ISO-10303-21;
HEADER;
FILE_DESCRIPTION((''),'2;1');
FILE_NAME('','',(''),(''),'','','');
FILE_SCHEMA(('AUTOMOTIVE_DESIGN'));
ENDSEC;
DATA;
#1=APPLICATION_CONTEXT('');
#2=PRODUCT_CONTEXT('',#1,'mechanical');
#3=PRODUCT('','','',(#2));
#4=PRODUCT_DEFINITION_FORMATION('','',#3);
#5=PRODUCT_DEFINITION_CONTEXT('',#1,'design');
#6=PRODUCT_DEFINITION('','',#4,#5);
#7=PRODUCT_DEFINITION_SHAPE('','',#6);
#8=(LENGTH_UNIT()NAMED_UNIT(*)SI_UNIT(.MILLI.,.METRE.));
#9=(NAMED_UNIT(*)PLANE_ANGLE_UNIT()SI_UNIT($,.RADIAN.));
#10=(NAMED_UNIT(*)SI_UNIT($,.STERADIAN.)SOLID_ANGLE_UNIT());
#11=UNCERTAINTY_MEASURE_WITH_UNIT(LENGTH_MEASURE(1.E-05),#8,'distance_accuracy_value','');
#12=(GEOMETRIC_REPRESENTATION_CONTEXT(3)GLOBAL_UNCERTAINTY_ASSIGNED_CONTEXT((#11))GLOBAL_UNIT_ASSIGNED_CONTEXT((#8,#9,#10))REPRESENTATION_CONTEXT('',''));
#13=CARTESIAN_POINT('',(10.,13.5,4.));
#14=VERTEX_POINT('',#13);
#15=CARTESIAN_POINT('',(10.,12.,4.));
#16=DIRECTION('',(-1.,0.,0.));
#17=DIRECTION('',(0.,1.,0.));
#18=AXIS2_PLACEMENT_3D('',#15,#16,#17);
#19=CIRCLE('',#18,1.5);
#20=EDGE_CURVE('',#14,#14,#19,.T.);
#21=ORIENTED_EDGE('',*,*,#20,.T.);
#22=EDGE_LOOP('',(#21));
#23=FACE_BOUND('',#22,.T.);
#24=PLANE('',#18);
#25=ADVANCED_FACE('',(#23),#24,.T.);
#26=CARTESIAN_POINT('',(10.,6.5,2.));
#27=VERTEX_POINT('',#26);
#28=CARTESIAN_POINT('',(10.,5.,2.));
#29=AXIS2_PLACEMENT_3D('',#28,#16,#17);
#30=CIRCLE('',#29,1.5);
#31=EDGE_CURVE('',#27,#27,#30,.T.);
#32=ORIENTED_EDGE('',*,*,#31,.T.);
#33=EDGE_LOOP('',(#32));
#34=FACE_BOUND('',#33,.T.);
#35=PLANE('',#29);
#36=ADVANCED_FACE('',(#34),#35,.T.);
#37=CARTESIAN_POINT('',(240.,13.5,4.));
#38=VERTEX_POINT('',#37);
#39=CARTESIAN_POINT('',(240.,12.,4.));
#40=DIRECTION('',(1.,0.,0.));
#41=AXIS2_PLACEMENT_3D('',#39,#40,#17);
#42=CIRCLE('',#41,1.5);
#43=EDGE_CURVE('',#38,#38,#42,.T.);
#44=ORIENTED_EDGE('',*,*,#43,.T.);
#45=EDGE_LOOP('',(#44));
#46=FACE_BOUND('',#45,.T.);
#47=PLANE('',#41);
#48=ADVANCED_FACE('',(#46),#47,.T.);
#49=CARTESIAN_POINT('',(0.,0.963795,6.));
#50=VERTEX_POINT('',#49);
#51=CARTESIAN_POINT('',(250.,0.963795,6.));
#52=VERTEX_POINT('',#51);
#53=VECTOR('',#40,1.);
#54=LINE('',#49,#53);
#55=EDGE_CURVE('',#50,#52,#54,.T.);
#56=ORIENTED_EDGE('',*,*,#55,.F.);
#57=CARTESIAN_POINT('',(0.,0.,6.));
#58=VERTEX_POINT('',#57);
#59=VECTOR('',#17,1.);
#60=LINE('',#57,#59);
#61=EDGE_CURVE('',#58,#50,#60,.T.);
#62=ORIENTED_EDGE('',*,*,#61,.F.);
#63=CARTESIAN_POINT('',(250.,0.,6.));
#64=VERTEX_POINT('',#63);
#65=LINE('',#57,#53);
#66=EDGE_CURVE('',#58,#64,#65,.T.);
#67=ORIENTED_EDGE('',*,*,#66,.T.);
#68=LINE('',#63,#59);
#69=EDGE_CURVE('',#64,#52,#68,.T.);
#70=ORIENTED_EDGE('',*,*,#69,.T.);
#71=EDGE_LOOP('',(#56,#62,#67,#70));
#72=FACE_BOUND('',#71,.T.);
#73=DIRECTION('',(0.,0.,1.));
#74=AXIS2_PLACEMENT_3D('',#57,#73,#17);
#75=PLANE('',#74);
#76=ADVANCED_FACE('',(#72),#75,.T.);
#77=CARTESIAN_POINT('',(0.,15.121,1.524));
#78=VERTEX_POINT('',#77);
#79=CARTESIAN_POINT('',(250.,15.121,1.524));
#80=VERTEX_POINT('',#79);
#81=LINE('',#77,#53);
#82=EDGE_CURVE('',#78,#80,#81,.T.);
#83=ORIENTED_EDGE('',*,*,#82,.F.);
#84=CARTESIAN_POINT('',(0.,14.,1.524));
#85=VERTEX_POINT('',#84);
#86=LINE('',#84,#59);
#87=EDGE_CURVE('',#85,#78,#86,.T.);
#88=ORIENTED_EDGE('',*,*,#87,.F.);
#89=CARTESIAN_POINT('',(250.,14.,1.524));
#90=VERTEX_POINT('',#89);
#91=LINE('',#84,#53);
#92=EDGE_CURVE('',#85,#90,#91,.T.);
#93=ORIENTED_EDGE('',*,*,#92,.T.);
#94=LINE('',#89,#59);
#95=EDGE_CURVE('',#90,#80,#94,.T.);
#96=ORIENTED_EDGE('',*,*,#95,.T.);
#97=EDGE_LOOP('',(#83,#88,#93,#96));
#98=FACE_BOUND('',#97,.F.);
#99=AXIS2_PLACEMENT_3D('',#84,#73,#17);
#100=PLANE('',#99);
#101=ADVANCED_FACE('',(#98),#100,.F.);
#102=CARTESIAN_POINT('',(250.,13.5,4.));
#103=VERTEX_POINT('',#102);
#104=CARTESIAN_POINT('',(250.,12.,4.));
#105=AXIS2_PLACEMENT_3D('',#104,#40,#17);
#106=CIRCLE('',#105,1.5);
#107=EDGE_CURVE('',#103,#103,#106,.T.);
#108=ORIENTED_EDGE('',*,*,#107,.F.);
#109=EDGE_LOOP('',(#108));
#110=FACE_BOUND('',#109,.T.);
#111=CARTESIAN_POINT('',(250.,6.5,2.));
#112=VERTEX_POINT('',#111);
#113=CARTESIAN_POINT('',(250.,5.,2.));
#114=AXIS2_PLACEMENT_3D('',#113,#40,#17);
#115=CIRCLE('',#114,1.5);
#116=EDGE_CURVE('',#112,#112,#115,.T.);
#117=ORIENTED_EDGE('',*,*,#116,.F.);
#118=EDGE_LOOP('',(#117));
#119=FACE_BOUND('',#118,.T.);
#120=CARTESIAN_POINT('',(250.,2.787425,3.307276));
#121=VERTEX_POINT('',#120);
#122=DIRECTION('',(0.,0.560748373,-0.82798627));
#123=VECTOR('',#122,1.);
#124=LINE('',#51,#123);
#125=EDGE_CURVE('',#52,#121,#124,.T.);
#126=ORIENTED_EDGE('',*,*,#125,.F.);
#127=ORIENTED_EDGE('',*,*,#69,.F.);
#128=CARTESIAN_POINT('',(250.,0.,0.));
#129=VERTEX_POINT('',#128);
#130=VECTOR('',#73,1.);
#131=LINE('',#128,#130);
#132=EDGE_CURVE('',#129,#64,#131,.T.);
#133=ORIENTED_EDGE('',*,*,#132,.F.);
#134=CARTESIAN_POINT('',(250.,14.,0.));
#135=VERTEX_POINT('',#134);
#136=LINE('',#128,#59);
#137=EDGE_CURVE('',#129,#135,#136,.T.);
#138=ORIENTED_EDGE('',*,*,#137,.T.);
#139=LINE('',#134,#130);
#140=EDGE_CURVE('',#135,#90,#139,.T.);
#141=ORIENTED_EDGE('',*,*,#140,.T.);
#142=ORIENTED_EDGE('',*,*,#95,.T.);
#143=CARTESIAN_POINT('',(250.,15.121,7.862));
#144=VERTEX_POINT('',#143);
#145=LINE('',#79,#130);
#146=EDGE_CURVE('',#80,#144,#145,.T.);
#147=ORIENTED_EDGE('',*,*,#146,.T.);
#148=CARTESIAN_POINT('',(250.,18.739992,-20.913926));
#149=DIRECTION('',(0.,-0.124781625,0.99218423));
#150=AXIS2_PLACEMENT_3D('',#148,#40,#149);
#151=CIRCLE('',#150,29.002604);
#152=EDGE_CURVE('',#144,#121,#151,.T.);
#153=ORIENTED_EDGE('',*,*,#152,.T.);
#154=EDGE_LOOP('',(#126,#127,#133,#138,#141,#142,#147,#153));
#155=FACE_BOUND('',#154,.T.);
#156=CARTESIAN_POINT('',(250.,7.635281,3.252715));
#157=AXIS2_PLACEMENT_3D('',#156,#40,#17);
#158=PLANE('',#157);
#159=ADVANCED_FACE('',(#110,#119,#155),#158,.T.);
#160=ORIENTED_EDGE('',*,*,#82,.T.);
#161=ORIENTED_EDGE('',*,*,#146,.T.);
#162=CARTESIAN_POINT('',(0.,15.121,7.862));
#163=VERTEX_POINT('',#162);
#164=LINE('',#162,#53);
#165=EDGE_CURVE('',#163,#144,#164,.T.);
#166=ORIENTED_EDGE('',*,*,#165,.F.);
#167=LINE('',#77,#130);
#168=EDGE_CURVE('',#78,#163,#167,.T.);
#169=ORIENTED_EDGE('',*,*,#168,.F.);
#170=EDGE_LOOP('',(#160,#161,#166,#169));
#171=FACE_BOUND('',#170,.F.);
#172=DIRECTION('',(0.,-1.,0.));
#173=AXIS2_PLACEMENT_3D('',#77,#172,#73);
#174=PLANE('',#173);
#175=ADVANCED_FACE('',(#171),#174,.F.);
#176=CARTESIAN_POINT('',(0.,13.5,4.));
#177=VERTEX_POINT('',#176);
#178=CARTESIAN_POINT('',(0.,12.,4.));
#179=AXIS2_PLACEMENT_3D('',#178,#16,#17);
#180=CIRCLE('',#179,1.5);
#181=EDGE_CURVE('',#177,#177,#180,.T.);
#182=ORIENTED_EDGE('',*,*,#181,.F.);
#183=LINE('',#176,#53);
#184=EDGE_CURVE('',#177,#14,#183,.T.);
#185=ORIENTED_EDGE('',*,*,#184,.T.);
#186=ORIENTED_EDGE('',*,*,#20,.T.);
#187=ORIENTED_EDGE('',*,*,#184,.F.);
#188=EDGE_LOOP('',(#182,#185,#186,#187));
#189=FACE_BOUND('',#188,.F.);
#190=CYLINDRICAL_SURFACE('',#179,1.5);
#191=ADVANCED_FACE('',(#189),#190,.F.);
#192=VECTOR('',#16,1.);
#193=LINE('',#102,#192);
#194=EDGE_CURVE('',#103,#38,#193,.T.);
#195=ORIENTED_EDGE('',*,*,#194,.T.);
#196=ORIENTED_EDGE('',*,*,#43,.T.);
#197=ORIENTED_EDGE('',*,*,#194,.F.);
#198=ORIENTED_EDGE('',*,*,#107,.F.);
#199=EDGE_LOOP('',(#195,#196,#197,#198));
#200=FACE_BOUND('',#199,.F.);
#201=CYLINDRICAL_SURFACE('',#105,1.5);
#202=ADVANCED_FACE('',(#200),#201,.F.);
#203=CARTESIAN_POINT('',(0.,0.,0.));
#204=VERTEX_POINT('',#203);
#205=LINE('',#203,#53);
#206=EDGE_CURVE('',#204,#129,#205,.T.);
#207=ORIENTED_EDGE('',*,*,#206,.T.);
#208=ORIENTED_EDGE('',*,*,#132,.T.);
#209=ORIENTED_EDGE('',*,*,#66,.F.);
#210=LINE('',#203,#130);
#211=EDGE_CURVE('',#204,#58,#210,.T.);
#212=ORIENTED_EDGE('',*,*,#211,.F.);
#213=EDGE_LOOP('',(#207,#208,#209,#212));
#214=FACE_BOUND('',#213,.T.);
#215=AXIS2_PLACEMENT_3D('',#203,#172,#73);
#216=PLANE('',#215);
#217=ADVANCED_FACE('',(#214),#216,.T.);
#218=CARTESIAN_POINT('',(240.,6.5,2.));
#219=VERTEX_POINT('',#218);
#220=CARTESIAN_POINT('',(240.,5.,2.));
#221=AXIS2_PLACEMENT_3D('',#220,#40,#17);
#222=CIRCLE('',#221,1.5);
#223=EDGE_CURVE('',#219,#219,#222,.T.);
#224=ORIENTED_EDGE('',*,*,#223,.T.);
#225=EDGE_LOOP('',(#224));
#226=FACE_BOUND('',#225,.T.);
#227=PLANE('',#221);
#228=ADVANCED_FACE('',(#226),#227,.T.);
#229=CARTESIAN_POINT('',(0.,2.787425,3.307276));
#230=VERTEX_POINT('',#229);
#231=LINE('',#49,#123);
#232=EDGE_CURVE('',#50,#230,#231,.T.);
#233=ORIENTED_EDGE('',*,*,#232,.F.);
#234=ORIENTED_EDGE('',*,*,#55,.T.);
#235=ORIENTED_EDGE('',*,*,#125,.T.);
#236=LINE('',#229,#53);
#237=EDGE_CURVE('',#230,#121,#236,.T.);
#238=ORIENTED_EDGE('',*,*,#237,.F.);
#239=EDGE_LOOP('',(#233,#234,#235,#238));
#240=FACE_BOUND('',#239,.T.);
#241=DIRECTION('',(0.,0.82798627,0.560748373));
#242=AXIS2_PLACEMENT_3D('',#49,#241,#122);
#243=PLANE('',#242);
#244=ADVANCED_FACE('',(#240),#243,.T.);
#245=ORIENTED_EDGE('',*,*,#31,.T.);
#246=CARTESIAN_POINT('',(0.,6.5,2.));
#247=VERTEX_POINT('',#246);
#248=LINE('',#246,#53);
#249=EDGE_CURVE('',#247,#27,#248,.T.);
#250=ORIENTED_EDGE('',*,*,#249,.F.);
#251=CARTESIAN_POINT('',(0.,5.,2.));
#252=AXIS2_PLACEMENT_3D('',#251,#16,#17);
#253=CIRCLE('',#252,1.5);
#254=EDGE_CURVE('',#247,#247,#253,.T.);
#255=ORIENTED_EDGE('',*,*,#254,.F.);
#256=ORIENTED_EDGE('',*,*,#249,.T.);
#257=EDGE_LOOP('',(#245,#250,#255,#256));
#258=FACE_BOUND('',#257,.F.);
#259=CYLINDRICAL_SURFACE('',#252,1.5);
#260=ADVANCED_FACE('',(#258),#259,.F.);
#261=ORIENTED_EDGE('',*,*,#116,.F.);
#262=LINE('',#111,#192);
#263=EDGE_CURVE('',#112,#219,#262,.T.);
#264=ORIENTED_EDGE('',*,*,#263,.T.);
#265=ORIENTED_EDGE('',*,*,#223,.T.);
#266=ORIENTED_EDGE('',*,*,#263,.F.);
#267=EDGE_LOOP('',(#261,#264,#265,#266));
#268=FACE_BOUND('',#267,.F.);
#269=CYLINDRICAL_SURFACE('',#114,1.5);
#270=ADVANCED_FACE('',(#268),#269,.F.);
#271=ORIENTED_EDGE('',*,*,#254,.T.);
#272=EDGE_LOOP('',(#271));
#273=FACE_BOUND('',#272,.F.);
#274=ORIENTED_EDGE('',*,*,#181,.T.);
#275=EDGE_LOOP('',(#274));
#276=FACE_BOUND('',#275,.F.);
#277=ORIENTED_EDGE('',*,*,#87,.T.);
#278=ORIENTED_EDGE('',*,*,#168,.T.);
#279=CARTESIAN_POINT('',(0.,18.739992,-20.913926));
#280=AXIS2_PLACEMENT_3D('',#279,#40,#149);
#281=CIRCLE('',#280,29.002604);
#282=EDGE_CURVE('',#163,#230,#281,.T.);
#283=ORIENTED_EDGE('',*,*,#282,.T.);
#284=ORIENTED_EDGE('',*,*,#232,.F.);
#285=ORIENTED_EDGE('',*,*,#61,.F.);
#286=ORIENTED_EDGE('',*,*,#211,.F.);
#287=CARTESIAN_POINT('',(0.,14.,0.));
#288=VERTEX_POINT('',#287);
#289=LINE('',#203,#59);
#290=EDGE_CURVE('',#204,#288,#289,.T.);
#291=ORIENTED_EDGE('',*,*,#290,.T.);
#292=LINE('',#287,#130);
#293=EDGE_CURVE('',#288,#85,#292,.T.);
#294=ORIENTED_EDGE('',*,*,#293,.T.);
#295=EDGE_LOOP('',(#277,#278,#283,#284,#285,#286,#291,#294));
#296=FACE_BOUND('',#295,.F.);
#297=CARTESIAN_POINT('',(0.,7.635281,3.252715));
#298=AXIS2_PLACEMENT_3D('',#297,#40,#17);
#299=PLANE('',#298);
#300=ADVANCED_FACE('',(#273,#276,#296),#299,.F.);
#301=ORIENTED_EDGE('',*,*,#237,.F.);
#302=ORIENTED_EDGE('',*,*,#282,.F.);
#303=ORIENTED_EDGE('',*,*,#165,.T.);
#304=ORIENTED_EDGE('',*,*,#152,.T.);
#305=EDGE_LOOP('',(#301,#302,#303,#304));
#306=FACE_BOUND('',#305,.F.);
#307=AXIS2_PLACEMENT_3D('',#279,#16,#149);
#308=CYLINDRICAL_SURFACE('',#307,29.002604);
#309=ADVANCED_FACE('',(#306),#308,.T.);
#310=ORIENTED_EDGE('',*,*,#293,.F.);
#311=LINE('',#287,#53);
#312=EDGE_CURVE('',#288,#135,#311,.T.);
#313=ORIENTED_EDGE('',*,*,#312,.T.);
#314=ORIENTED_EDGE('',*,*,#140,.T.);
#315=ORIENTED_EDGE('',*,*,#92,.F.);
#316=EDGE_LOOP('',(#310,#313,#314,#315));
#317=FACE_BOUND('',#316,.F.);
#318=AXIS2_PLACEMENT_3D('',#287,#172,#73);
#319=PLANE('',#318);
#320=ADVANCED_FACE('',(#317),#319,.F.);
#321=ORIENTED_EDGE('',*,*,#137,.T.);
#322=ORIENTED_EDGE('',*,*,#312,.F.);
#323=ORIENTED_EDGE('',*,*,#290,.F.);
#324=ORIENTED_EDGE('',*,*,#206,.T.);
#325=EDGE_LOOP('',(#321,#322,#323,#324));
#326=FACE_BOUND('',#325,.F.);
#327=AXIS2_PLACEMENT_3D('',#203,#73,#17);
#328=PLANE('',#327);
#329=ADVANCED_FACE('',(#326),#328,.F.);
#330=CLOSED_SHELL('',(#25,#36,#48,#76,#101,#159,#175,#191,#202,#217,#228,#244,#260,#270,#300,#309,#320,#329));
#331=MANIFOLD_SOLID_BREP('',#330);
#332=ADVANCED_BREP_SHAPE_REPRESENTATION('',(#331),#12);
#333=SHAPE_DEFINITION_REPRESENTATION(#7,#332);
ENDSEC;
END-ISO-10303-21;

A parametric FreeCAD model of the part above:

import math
import FreeCAD as App
import Part
import Sketcher

doc = App.newDocument("Part")
body = doc.addObject("PartDesign::Body", "Body")

sketch1 = body.newObject("Sketcher::SketchObject", "Sketch")
sketch1.AttachmentSupport = (doc.getObject("YZ_Plane"), [""])
sketch1.MapMode = "FlatFace"
sketch1.addGeometry([
    Part.LineSegment(App.Vector(0, 0, 0), App.Vector(14, 0, 0)),
    Part.LineSegment(App.Vector(14, 0, 0), App.Vector(14, 1.5, 0)),
    Part.LineSegment(App.Vector(14, 1.5, 0), App.Vector(15.1, 1.5, 0)),
    Part.LineSegment(App.Vector(15.1, 1.5, 0), App.Vector(15.1, 7.9, 0)),
    Part.ArcOfCircle(Part.Circle(App.Vector(18.7, -20.9, 0), App.Vector(0, 0, 1), 29), math.radians(97), math.radians(123)),
    Part.LineSegment(App.Vector(2.8, 3.3, 0), App.Vector(1, 6, 0)),
    Part.LineSegment(App.Vector(1, 6, 0), App.Vector(0, 6, 0)),
    Part.LineSegment(App.Vector(0, 6, 0), App.Vector(0, 0, 0)),
], False)
sketch1.addConstraint([
    Sketcher.Constraint("Coincident", 0, 2, 1, 1),
    Sketcher.Constraint("Coincident", 1, 2, 2, 1),
    Sketcher.Constraint("Coincident", 2, 2, 3, 1),
    Sketcher.Constraint("Coincident", 3, 2, 4, 1),
    Sketcher.Constraint("Coincident", 4, 2, 5, 1),
    Sketcher.Constraint("Coincident", 5, 2, 6, 1),
    Sketcher.Constraint("Coincident", 6, 2, 7, 1),
    Sketcher.Constraint("Coincident", 7, 2, 0, 1),
    Sketcher.Constraint("Horizontal", 0),
    Sketcher.Constraint("Vertical", 1),
    Sketcher.Constraint("Horizontal", 2),
    Sketcher.Constraint("Vertical", 3),
    Sketcher.Constraint("Horizontal", 6),
    Sketcher.Constraint("Vertical", 7),
    Sketcher.Constraint("Coincident", 7, 2, -1, 1),
    Sketcher.Constraint("DistanceX", 0, 1, 0, 2, 14.0),
    Sketcher.Constraint("DistanceY", 7, 2, 7, 1, 6.0),
    Sketcher.Constraint("DistanceX", 2, 1, 2, 2, 1.121),
    Sketcher.Constraint("DistanceY", 1, 1, 1, 2, 1.524),
    Sketcher.Constraint("DistanceY", 3, 1, 3, 2, 6.338),
    Sketcher.Constraint("Radius", 4, 29.002604),
    Sketcher.Constraint("DistanceX", 6, 2, 6, 1, 0.963795),
    Sketcher.Constraint("DistanceX", 5, 2, 4, 2, 1.82363),
    Sketcher.Constraint("Distance", 5, 3.252136),
])
pad1 = body.newObject("PartDesign::Pad", "Pad")
pad1.Profile = sketch1
pad1.Length = 250

sketch2 = body.newObject("Sketcher::SketchObject", "Sketch001")
sketch2.AttachmentSupport = (doc.getObject("YZ_Plane"), [""])
sketch2.MapMode = "FlatFace"
sketch2.AttachmentOffset = App.Placement(App.Vector(0, 0, 250), App.Rotation())
sketch2.addGeometry([
    Part.Circle(App.Vector(12, 4, 0), App.Vector(0, 0, 1), 1.5),
    Part.Circle(App.Vector(5, 2, 0), App.Vector(0, 0, 1), 1.5),
], False)
sketch2.addConstraint([
    Sketcher.Constraint("Equal", 0, 1),
    Sketcher.Constraint("Diameter", 0, 3.0),
    Sketcher.Constraint("DistanceX", -1, 1, 0, 3, 12.0),
    Sketcher.Constraint("DistanceY", -1, 1, 0, 3, 4.0),
    Sketcher.Constraint("DistanceX", -1, 1, 1, 3, 5.0),
    Sketcher.Constraint("DistanceY", -1, 1, 1, 3, 2.0),
])
pocket1 = body.newObject("PartDesign::Pocket", "Pocket")
pocket1.Profile = sketch2
pocket1.Length = 10

sketch3 = body.newObject("Sketcher::SketchObject", "Sketch002")
sketch3.AttachmentSupport = (doc.getObject("YZ_Plane"), [""])
sketch3.MapMode = "FlatFace"
sketch3.addGeometry([
    Part.Circle(App.Vector(12, 4, 0), App.Vector(0, 0, 1), 1.5),
    Part.Circle(App.Vector(5, 2, 0), App.Vector(0, 0, 1), 1.5),
], False)
sketch3.addConstraint([
    Sketcher.Constraint("Equal", 0, 1),
    Sketcher.Constraint("Diameter", 0, 3.0),
    Sketcher.Constraint("DistanceX", -1, 1, 0, 3, 12.0),
    Sketcher.Constraint("DistanceY", -1, 1, 0, 3, 4.0),
    Sketcher.Constraint("DistanceX", -1, 1, 1, 3, 5.0),
    Sketcher.Constraint("DistanceY", -1, 1, 1, 3, 2.0),
])
pocket2 = body.newObject("PartDesign::Pocket", "Pocket001")
pocket2.Profile = sketch3
pocket2.Length = 10
pocket2.Reversed = True

doc.recompute()
